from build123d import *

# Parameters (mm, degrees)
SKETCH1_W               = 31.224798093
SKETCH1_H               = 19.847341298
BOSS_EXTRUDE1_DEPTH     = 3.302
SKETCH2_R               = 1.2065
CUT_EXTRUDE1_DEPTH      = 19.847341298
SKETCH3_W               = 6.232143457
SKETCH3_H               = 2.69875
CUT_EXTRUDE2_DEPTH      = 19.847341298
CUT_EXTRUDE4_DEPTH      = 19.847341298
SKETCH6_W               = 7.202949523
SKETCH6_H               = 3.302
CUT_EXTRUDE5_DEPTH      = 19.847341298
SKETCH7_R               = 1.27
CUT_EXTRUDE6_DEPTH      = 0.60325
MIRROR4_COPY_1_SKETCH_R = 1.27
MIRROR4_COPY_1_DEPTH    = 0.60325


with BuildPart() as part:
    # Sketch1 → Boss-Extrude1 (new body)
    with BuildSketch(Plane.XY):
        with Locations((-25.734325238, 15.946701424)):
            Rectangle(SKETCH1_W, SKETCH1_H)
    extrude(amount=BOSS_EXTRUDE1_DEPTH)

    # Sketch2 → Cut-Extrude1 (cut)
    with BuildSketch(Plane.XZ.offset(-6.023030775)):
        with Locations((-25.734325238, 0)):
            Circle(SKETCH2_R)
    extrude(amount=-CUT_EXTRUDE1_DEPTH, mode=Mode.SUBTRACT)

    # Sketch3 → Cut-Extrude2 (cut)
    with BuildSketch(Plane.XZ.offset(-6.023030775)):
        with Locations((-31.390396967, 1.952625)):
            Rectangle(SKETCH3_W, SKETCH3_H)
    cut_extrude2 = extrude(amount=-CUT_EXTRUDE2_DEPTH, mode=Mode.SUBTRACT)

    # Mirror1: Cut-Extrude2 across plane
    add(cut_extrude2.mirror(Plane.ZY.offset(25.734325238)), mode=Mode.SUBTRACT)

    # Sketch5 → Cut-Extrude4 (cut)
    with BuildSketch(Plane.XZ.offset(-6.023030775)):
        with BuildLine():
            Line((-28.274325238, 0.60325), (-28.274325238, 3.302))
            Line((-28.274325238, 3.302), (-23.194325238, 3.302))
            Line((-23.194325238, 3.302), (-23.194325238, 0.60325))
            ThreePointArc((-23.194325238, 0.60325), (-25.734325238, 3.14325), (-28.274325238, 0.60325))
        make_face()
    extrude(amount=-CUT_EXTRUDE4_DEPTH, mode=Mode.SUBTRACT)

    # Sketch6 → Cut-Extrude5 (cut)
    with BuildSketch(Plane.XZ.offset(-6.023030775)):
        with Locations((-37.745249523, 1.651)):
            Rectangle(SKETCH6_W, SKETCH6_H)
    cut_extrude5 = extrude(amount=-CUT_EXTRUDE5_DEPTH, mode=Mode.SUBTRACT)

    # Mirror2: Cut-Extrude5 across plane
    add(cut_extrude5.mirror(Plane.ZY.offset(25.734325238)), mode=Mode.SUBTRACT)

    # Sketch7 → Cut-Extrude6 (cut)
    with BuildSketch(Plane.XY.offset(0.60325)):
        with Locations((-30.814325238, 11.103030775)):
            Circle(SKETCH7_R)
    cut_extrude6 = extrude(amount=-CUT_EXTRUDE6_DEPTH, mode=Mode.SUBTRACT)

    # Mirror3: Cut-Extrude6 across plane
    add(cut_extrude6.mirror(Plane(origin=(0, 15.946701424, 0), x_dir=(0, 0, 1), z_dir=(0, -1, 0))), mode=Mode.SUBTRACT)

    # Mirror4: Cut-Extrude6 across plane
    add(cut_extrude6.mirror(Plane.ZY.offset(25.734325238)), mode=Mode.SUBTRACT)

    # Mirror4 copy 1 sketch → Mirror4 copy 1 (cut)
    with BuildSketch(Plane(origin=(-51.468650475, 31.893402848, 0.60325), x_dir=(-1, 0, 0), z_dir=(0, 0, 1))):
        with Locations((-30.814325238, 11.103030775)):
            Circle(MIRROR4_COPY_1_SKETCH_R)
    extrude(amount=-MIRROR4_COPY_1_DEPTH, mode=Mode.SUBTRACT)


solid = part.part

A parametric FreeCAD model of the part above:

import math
import FreeCAD as App
import Part
import Sketcher
from FreeCAD import Vector
Q = App.Units.Quantity

doc = App.newDocument("Part")
body = doc.addObject("PartDesign::Body", "Body")

sketch1 = body.newObject("Sketcher::SketchObject", "Sketch")
sketch1.AttachmentSupport = (doc.getObject("XY_Plane"), [""])
sketch1.MapMode = "FlatFace"
sketch1.addGeometry(Part.LineSegment(Vector(-41, 26, 0), Vector(-41, 6, 0)), False)
sketch1.addGeometry(Part.LineSegment(Vector(-41, 6, 0), Vector(-10, 6, 0)), False)
sketch1.addGeometry(Part.LineSegment(Vector(-10, 6, 0), Vector(-10, 26, 0)), False)
sketch1.addGeometry(Part.LineSegment(Vector(-10, 26, 0), Vector(-41, 26, 0)), False)
sketch1.addConstraint(Sketcher.Constraint("Coincident", 0, 2, 1, 1))
sketch1.addConstraint(Sketcher.Constraint("Coincident", 1, 2, 2, 1))
sketch1.addConstraint(Sketcher.Constraint("Coincident", 2, 2, 3, 1))
sketch1.addConstraint(Sketcher.Constraint("Coincident", 3, 2, 0, 1))
sketch1.addConstraint(Sketcher.Constraint("Vertical", 0))
sketch1.addConstraint(Sketcher.Constraint("Horizontal", 1))
sketch1.addConstraint(Sketcher.Constraint("Vertical", 2))
sketch1.addConstraint(Sketcher.Constraint("Horizontal", 3))
sketch1.addConstraint(Sketcher.Constraint("DistanceX", 1, 1, 1, 2, Q("31.224798 mm")))
sketch1.addConstraint(Sketcher.Constraint("DistanceY", 0, 2, 0, 1, Q("19.847341 mm")))
sketch1.addConstraint(Sketcher.Constraint("DistanceY", -1, 1, 0, 2, Q("6.023031 mm")))
sketch1.addConstraint(Sketcher.Constraint("DistanceX", 0, 2, -1, 1, Q("41.346724 mm")))
pad1 = body.newObject("PartDesign::Pad", "Pad")
pad1.Profile = sketch1
pad1.Length = Q("0.13 in")

sketch2 = body.newObject("Sketcher::SketchObject", "Sketch001")
sketch2.AttachmentSupport = (doc.getObject("XZ_Plane"), [""])
sketch2.MapMode = "FlatFace"
sketch2.AttachmentOffset = App.Placement(Vector(0, 0, -6.023031), App.Rotation())
sketch2.addGeometry(Part.Circle(Vector(-25.7, 0, 0), Vector(0, 0, 1), 1.2), False)
sketch2.addConstraint(Sketcher.Constraint("PointOnObject", 0, 3, -1))
sketch2.addConstraint(Sketcher.Constraint("Diameter", 0, Q("0.095 in")))
sketch2.addConstraint(Sketcher.Constraint("DistanceX", 0, 3, -1, 1, Q("25.734325 mm")))
pocket1 = body.newObject("PartDesign::Pocket", "Pocket")
pocket1.Profile = sketch2
pocket1.Length = 19.847341

sketch3 = body.newObject("Sketcher::SketchObject", "Sketch002")
sketch3.AttachmentSupport = (doc.getObject("XZ_Plane"), [""])
sketch3.MapMode = "FlatFace"
sketch3.AttachmentOffset = App.Placement(Vector(0, 0, -6.023031), App.Rotation())
sketch3.addGeometry(Part.LineSegment(Vector(-34.5, 3.3, 0), Vector(-34.5, 0.6, 0)), False)
sketch3.addGeometry(Part.LineSegment(Vector(-34.5, 0.6, 0), Vector(-28.3, 0.6, 0)), False)
sketch3.addGeometry(Part.LineSegment(Vector(-28.3, 0.6, 0), Vector(-28.3, 3.3, 0)), False)
sketch3.addGeometry(Part.LineSegment(Vector(-28.3, 3.3, 0), Vector(-34.5, 3.3, 0)), False)
sketch3.addConstraint(Sketcher.Constraint("Coincident", 0, 2, 1, 1))
sketch3.addConstraint(Sketcher.Constraint("Coincident", 1, 2, 2, 1))
sketch3.addConstraint(Sketcher.Constraint("Coincident", 2, 2, 3, 1))
sketch3.addConstraint(Sketcher.Constraint("Coincident", 3, 2, 0, 1))
sketch3.addConstraint(Sketcher.Constraint("Vertical", 0))
sketch3.addConstraint(Sketcher.Constraint("Horizontal", 1))
sketch3.addConstraint(Sketcher.Constraint("Vertical", 2))
sketch3.addConstraint(Sketcher.Constraint("Horizontal", 3))
sketch3.addConstraint(Sketcher.Constraint("DistanceY", -1, 1, 2, 2, Q("0.13 in")))
sketch3.addConstraint(Sketcher.Constraint("DistanceY", 0, 2, 0, 1, Q("2.69875 mm")))
sketch3.addConstraint(Sketcher.Constraint("DistanceX", 1, 1, 1, 2, Q("6.232143 mm")))
sketch3.addConstraint(Sketcher.Constraint("DistanceX", 0, 2, -1, 1, Q("34.506469 mm")))
pocket2 = body.newObject("PartDesign::Pocket", "Pocket001")
pocket2.Profile = sketch3
pocket2.Length = 19.847341
doc.recompute()

datumplane = body.newObject("PartDesign::Plane", "DatumPlane")
datumplane.AttachmentSupport = (doc.getObject("YZ_Plane"), [""])
datumplane.MapMode = "FlatFace"
datumplane.AttachmentOffset = App.Placement(Vector(0, 0, -25.734325), App.Rotation())
mirrored = body.newObject("PartDesign::Mirrored", "Mirrored")
mirrored.Originals = [pocket2]
mirrored.MirrorPlane = (datumplane, [""])
body.Tip = mirrored

sketch4 = body.newObject("Sketcher::SketchObject", "Sketch003")
sketch4.AttachmentSupport = (doc.getObject("XZ_Plane"), [""])
sketch4.MapMode = "FlatFace"
sketch4.AttachmentOffset = App.Placement(Vector(0, 0, -6.023031), App.Rotation())
sketch4.addGeometry(Part.LineSegment(Vector(-28.3, 3.3, 0), Vector(-28.3, 0.6, 0)), False)
sketch4.addGeometry(Part.ArcOfCircle(Part.Circle(Vector(-25.7, 0.6, 0), Vector(0, 0, 1), 2.5), math.radians(0), math.radians(180)), False)
sketch4.addGeometry(Part.LineSegment(Vector(-23.2, 0.6, 0), Vector(-23.2, 3.3, 0)), False)
sketch4.addGeometry(Part.LineSegment(Vector(-23.2, 3.3, 0), Vector(-28.3, 3.3, 0)), False)
sketch4.addConstraint(Sketcher.Constraint("Tangent", 0, 2, 1, 2))
sketch4.addConstraint(Sketcher.Constraint("Tangent", 1, 1, 2, 1))
sketch4.addConstraint(Sketcher.Constraint("Coincident", 2, 2, 3, 1))
sketch4.addConstraint(Sketcher.Constraint("Coincident", 3, 2, 0, 1))
sketch4.addConstraint(Sketcher.Constraint("Vertical", 0))
sketch4.addConstraint(Sketcher.Constraint("Vertical", 2))
sketch4.addConstraint(Sketcher.Constraint("Horizontal", 3))
sketch4.addConstraint(Sketcher.Constraint("Radius", 1, Q("0.1 in")))
sketch4.addConstraint(Sketcher.Constraint("DistanceY", -1, 1, 2, 2, Q("0.13 in")))
sketch4.addConstraint(Sketcher.Constraint("DistanceY", 0, 2, 0, 1, Q("2.69875 mm")))
sketch4.addConstraint(Sketcher.Constraint("DistanceX", 1, 3, -1, 1, Q("25.734325 mm")))
pocket3 = body.newObject("PartDesign::Pocket", "Pocket002")
pocket3.Profile = sketch4
pocket3.Length = 19.847341

sketch5 = body.newObject("Sketcher::SketchObject", "Sketch004")
sketch5.AttachmentSupport = (doc.getObject("XZ_Plane"), [""])
sketch5.MapMode = "FlatFace"
sketch5.AttachmentOffset = App.Placement(Vector(0, 0, -6.023031), App.Rotation())
sketch5.addGeometry(Part.LineSegment(Vector(-41.3, 3.3, 0), Vector(-41.3, 0, 0)), False)
sketch5.addGeometry(Part.LineSegment(Vector(-41.3, 0, 0), Vector(-34.1, 0, 0)), False)
sketch5.addGeometry(Part.LineSegment(Vector(-34.1, 0, 0), Vector(-34.1, 3.3, 0)), False)
sketch5.addGeometry(Part.LineSegment(Vector(-34.1, 3.3, 0), Vector(-41.3, 3.3, 0)), False)
sketch5.addConstraint(Sketcher.Constraint("Coincident", 0, 2, 1, 1))
sketch5.addConstraint(Sketcher.Constraint("Coincident", 1, 2, 2, 1))
sketch5.addConstraint(Sketcher.Constraint("Coincident", 2, 2, 3, 1))
sketch5.addConstraint(Sketcher.Constraint("Coincident", 3, 2, 0, 1))
sketch5.addConstraint(Sketcher.Constraint("Vertical", 0))
sketch5.addConstraint(Sketcher.Constraint("Horizontal", 1))
sketch5.addConstraint(Sketcher.Constraint("Vertical", 2))
sketch5.addConstraint(Sketcher.Constraint("Horizontal", 3))
sketch5.addConstraint(Sketcher.Constraint("PointOnObject", 0, 2, -1))
sketch5.addConstraint(Sketcher.Constraint("DistanceY", 0, 2, 0, 1, Q("0.13 in")))
sketch5.addConstraint(Sketcher.Constraint("DistanceX", 1, 1, 1, 2, Q("7.20295 mm")))
sketch5.addConstraint(Sketcher.Constraint("DistanceX", 0, 2, -1, 1, Q("41.346724 mm")))
pocket4 = body.newObject("PartDesign::Pocket", "Pocket003")
pocket4.Profile = sketch5
pocket4.Length = 19.847341
doc.recompute()

datumplane2 = body.newObject("PartDesign::Plane", "DatumPlane001")
datumplane2.AttachmentSupport = (doc.getObject("YZ_Plane"), [""])
datumplane2.MapMode = "FlatFace"
datumplane2.AttachmentOffset = App.Placement(Vector(0, 0, -25.734325), App.Rotation())
mirrored2 = body.newObject("PartDesign::Mirrored", "Mirrored001")
mirrored2.Originals = [pocket4]
mirrored2.MirrorPlane = (datumplane2, [""])
body.Tip = mirrored2

sketch6 = body.newObject("Sketcher::SketchObject", "Sketch005")
sketch6.AttachmentSupport = (doc.getObject("XY_Plane"), [""])
sketch6.MapMode = "FlatFace"
sketch6.AttachmentOffset = App.Placement(Vector(0, 0, 0.60325), App.Rotation())
sketch6.addGeometry(Part.Circle(Vector(-30.8, 11.1, 0), Vector(0, 0, 1), 1.3), False)
sketch6.addConstraint(Sketcher.Constraint("Diameter", 0, Q("0.1 in")))
sketch6.addConstraint(Sketcher.Constraint("DistanceY", -1, 1, 0, 3, Q("11.103031 mm")))
sketch6.addConstraint(Sketcher.Constraint("DistanceX", 0, 3, -1, 1, Q("30.814325 mm")))
pocket5 = body.newObject("PartDesign::Pocket", "Pocket004")
pocket5.Profile = sketch6
pocket5.Length = 0.60325
doc.recompute()

datumplane3 = body.newObject("PartDesign::Plane", "DatumPlane002")
datumplane3.AttachmentSupport = (doc.getObject("XZ_Plane"), [""])
datumplane3.MapMode = "FlatFace"
datumplane3.AttachmentOffset = App.Placement(Vector(0, 0, -15.946701), App.Rotation())
mirrored3 = body.newObject("PartDesign::Mirrored", "Mirrored002")
mirrored3.Originals = [pocket5]
mirrored3.MirrorPlane = (datumplane3, [""])
body.Tip = mirrored3
doc.recompute()

datumplane4 = body.newObject("PartDesign::Plane", "DatumPlane003")
datumplane4.AttachmentSupport = (doc.getObject("YZ_Plane"), [""])
datumplane4.MapMode = "FlatFace"
datumplane4.AttachmentOffset = App.Placement(Vector(0, 0, -25.734325), App.Rotation())
mirrored4 = body.newObject("PartDesign::Mirrored", "Mirrored003")
mirrored4.Originals = [pocket5]
mirrored4.MirrorPlane = (datumplane4, [""])
body.Tip = mirrored4

sketch7 = body.newObject("Sketcher::SketchObject", "Sketch006")
sketch7.AttachmentSupport = (doc.getObject("XY_Plane"), [""])
sketch7.MapMode = "FlatFace"
sketch7.AttachmentOffset = App.Placement(Vector(0, 0, 0.60325), App.Rotation())
sketch7.addGeometry(Part.Circle(Vector(-20.7, 20.8, 0), Vector(0, 0, 1), 1.3), False)
sketch7.addConstraint(Sketcher.Constraint("Diameter", 0, Q("0.1 in")))
sketch7.addConstraint(Sketcher.Constraint("DistanceX", 0, 3, -1, 1, Q("20.654325 mm")))
sketch7.addConstraint(Sketcher.Constraint("DistanceY", -1, 1, 0, 3, Q("20.790372 mm")))
pocket6 = body.newObject("PartDesign::Pocket", "Pocket005")
pocket6.Profile = sketch7
pocket6.Length = 0.60325

doc.recompute()
